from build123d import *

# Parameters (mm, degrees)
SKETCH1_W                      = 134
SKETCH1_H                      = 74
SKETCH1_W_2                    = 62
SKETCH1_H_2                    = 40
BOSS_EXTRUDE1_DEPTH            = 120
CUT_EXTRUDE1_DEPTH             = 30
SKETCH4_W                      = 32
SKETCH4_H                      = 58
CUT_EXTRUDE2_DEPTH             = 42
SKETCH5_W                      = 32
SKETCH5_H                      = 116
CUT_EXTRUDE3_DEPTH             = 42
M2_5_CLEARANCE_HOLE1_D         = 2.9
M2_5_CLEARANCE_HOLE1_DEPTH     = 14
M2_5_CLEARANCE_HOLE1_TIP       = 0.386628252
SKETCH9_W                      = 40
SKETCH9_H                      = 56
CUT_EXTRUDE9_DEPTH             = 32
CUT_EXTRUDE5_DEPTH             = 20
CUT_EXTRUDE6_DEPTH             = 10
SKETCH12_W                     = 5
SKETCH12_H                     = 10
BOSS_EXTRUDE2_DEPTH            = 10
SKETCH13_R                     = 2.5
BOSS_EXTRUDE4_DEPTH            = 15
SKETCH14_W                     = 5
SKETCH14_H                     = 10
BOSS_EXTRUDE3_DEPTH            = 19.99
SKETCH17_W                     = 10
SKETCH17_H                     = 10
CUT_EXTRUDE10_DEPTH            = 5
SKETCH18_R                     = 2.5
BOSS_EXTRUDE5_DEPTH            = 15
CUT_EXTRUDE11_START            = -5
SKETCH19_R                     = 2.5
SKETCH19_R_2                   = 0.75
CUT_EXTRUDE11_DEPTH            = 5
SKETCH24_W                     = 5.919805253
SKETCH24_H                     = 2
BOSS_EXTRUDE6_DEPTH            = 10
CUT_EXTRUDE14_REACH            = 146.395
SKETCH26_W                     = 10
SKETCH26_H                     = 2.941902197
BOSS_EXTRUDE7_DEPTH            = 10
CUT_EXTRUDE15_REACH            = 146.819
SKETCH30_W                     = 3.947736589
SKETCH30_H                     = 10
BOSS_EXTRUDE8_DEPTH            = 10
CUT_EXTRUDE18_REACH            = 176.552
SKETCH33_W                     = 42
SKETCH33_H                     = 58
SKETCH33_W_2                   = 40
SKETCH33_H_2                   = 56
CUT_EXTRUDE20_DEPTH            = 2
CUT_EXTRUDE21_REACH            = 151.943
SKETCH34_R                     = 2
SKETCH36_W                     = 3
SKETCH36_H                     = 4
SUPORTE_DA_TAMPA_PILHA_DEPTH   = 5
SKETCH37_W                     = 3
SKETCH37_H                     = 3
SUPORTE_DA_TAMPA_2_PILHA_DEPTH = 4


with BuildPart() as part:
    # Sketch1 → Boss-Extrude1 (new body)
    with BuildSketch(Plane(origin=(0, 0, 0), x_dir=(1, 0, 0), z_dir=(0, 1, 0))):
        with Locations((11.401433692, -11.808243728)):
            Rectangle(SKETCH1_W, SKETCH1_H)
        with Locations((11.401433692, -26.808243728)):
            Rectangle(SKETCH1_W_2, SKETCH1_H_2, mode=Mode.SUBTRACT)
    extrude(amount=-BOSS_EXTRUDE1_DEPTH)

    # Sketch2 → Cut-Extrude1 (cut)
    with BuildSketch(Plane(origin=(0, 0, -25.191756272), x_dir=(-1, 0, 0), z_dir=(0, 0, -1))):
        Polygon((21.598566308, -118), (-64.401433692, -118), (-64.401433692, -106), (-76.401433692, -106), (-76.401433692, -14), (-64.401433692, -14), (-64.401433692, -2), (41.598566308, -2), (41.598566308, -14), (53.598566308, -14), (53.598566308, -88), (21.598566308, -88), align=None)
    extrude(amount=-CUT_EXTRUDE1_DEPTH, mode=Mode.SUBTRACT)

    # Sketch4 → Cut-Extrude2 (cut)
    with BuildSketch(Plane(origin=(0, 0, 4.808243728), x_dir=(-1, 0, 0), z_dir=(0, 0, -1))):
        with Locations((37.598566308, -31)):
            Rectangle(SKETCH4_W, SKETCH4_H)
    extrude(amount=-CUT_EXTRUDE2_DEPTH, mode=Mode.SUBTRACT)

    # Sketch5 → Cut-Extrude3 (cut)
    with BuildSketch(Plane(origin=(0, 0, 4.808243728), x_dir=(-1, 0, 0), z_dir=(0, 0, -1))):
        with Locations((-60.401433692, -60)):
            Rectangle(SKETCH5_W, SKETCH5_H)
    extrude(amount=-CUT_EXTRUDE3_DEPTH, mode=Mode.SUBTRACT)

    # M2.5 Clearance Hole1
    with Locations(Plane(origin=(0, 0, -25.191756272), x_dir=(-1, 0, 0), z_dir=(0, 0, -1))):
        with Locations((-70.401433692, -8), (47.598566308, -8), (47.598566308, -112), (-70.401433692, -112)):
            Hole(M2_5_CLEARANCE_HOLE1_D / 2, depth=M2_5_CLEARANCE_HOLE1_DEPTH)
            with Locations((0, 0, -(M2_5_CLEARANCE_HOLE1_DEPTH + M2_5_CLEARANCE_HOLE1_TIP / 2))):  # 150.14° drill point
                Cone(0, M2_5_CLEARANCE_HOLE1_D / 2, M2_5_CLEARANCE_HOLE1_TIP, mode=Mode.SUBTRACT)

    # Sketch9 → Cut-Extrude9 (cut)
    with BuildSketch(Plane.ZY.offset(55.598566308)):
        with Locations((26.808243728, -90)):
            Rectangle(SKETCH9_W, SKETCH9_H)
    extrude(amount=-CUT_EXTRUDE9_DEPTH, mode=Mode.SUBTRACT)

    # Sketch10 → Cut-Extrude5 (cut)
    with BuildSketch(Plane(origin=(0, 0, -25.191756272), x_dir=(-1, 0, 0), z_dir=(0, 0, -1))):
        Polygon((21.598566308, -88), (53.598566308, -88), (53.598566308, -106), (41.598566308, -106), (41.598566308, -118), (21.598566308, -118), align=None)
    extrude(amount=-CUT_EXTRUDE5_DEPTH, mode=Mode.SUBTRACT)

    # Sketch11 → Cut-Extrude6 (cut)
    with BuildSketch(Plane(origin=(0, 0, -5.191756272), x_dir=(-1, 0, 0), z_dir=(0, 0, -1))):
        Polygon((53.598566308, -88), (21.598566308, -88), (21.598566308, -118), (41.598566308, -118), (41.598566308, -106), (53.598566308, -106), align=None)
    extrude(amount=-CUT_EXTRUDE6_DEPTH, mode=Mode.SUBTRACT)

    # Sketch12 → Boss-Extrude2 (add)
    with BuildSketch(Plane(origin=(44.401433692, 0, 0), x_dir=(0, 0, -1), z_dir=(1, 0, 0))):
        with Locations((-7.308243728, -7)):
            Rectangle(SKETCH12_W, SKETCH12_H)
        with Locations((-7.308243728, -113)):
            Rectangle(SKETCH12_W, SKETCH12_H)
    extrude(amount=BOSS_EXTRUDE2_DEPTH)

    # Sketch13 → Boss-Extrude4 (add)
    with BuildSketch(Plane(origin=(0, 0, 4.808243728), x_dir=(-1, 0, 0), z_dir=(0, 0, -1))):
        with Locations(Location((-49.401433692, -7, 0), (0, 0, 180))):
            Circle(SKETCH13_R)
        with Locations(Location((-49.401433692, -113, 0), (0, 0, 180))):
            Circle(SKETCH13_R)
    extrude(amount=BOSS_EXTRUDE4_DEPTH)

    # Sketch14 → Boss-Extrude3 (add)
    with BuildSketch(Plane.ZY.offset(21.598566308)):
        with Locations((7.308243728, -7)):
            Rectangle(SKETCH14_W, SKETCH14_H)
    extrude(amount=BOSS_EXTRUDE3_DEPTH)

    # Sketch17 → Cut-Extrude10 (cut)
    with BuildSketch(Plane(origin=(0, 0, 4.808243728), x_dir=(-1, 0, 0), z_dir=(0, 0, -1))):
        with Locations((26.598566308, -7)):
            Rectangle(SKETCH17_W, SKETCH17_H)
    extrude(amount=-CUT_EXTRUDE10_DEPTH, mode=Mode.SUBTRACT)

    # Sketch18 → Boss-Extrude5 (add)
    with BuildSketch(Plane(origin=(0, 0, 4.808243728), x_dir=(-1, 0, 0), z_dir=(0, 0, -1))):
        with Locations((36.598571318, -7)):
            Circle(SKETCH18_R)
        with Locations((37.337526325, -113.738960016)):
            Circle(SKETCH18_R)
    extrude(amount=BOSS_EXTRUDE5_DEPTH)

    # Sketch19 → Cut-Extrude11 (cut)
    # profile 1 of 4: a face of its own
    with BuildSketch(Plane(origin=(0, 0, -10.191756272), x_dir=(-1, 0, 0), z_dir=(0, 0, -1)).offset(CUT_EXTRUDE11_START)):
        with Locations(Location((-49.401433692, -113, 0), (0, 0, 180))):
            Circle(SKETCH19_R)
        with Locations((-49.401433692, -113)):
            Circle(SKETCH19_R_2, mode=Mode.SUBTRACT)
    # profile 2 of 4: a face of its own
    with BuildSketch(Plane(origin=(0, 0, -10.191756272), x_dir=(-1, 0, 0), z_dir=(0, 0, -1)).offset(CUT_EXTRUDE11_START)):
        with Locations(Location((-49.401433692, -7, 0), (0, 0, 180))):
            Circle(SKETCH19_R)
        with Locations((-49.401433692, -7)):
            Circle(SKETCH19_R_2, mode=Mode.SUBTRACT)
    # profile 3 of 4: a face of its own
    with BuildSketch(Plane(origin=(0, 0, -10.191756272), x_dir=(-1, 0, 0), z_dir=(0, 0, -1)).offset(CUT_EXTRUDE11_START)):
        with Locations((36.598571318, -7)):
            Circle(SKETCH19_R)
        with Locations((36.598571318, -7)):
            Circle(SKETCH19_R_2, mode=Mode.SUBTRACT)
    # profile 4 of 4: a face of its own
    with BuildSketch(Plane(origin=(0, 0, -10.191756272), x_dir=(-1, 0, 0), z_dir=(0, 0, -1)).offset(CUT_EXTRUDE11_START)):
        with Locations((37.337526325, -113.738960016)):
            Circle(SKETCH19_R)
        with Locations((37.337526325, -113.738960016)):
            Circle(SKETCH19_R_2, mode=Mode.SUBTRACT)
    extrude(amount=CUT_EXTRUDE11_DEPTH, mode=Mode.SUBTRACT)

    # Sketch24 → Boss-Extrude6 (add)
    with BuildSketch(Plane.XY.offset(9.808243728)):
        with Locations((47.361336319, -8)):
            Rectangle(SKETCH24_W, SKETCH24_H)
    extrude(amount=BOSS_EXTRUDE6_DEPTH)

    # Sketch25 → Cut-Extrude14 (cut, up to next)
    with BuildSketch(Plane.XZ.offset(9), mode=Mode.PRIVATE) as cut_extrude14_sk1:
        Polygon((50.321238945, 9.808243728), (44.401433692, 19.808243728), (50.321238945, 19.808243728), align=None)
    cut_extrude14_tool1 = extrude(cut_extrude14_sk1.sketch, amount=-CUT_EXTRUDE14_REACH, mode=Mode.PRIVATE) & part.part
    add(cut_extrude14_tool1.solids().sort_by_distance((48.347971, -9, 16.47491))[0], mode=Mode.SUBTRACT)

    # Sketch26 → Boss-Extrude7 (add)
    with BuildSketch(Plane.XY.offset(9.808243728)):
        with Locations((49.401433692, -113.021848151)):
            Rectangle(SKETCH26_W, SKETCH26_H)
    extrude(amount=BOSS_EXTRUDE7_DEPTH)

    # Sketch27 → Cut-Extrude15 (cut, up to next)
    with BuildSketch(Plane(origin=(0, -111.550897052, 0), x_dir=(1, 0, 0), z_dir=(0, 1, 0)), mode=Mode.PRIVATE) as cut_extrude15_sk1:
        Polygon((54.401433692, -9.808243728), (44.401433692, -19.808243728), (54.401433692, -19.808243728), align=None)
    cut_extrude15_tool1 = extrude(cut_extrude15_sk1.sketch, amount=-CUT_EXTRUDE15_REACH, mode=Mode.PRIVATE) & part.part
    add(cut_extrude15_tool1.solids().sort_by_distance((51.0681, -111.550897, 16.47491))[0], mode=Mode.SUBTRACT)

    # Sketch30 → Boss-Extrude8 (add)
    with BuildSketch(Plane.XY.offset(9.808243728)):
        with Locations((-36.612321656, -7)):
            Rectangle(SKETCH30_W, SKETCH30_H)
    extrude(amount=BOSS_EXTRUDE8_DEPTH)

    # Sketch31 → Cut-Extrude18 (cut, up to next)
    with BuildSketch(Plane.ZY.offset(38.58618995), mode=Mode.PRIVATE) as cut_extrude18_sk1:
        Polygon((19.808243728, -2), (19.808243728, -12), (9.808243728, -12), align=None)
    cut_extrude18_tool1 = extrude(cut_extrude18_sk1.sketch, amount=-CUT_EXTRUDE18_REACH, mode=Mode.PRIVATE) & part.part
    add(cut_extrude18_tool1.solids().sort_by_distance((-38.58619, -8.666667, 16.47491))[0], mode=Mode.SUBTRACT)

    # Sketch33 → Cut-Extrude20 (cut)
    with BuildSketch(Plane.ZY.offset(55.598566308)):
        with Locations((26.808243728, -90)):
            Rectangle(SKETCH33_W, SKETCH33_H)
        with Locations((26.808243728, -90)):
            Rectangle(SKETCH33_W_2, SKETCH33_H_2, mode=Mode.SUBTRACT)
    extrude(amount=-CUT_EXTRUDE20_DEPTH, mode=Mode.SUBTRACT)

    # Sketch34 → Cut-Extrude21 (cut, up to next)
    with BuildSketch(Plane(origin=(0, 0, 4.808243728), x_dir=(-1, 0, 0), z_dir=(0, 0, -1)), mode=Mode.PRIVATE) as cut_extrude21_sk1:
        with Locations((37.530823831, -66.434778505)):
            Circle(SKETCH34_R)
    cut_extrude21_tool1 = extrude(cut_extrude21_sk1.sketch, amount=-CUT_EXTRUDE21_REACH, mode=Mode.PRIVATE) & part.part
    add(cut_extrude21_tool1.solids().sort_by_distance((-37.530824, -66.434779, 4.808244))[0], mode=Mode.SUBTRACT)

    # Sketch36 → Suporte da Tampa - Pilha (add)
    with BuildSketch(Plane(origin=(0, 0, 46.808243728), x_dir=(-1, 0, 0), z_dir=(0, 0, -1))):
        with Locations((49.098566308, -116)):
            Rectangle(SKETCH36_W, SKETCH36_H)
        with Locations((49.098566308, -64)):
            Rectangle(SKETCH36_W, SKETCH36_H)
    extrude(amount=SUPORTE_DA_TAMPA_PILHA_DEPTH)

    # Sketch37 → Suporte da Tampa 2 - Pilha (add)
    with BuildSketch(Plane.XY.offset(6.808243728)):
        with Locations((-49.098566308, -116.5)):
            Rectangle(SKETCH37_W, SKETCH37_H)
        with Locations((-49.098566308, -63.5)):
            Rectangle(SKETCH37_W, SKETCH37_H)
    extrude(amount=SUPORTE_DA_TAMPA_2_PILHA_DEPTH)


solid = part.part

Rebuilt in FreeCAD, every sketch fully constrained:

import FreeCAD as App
import Part
import Sketcher
Q = App.Units.Quantity

doc = App.newDocument("Part")
body = doc.addObject("PartDesign::Body", "Body")

# Sketch on XZ plane
sketch1 = body.newObject("Sketcher::SketchObject", "Sketch")
sketch1.AttachmentSupport = (doc.getObject("XZ_Plane"), [""])
sketch1.MapMode = "FlatFace"
sketch1.addGeometry([
    Part.LineSegment(App.Vector(-56, -25, 0), App.Vector(-56, 49, 0)),  # 0
    Part.LineSegment(App.Vector(-56, 49, 0), App.Vector(78, 49, 0)),  # 1
    Part.LineSegment(App.Vector(78, 49, 0), App.Vector(78, -25, 0)),  # 2
    Part.LineSegment(App.Vector(78, -25, 0), App.Vector(-56, -25, 0)),  # 3
    Part.LineSegment(App.Vector(42, 47, 0), App.Vector(-20, 47, 0)),  # 4
    Part.LineSegment(App.Vector(-20, 47, 0), App.Vector(-20, 7, 0)),  # 5
    Part.LineSegment(App.Vector(-20, 7, 0), App.Vector(42, 7, 0)),  # 6
    Part.LineSegment(App.Vector(42, 7, 0), App.Vector(42, 47, 0)),  # 7
], False)
sketch1.addConstraint([
    Sketcher.Constraint("Coincident", 0, 2, 1, 1),
    Sketcher.Constraint("Coincident", 1, 2, 2, 1),
    Sketcher.Constraint("Coincident", 2, 2, 3, 1),
    Sketcher.Constraint("Coincident", 3, 2, 0, 1),
    Sketcher.Constraint("Coincident", 4, 2, 5, 1),
    Sketcher.Constraint("Coincident", 5, 2, 6, 1),
    Sketcher.Constraint("Coincident", 6, 2, 7, 1),
    Sketcher.Constraint("Coincident", 7, 2, 4, 1),
    Sketcher.Constraint("Vertical", 0),
    Sketcher.Constraint("Horizontal", 1),
    Sketcher.Constraint("Vertical", 2),
    Sketcher.Constraint("Horizontal", 3),
    Sketcher.Constraint("Horizontal", 4),
    Sketcher.Constraint("Vertical", 5),
    Sketcher.Constraint("Horizontal", 6),
    Sketcher.Constraint("Vertical", 7),
    Sketcher.Constraint("DistanceX", 1, 1, 1, 2, Q("134 mm")),
    Sketcher.Constraint("DistanceX", 4, 2, 4, 1, Q("62 mm")),
    Sketcher.Constraint("DistanceY", 0, 1, 0, 2, Q("74 mm")),
    Sketcher.Constraint("DistanceY", 5, 2, 5, 1, Q("40 mm")),
    Sketcher.Constraint("DistanceX", 0, 2, 4, 2, Q("36 mm")),
    Sketcher.Constraint("DistanceY", 4, 2, 0, 2, Q("2 mm")),
    Sketcher.Constraint("DistanceX", 0, 2, -1, 1, Q("55.598566 mm")),
    Sketcher.Constraint("DistanceY", -1, 1, 0, 2, Q("48.808244 mm")),
])
pad1 = body.newObject("PartDesign::Pad", "Pad")
pad1.Profile = sketch1
pad1.Length = 120

# Sketch on XY plane
sketch2 = body.newObject("Sketcher::SketchObject", "Sketch001")
sketch2.AttachmentSupport = (doc.getObject("XY_Plane"), [""])
sketch2.MapMode = "FlatFace"
sketch2.AttachmentOffset = App.Placement(App.Vector(0, 0, -25.191756), App.Rotation())
sketch2.addGeometry([
    Part.LineSegment(App.Vector(64, -118, 0), App.Vector(-22, -118, 0)),  # 0
    Part.LineSegment(App.Vector(-22, -118, 0), App.Vector(-22, -88, 0)),  # 1
    Part.LineSegment(App.Vector(-22, -88, 0), App.Vector(-54, -88, 0)),  # 2
    Part.LineSegment(App.Vector(-54, -88, 0), App.Vector(-54, -14, 0)),  # 3
    Part.LineSegment(App.Vector(-54, -14, 0), App.Vector(-42, -14, 0)),  # 4
    Part.LineSegment(App.Vector(-42, -14, 0), App.Vector(-42, -2, 0)),  # 5
    Part.LineSegment(App.Vector(-42, -2, 0), App.Vector(64, -2, 0)),  # 6
    Part.LineSegment(App.Vector(64, -2, 0), App.Vector(64, -14, 0)),  # 7
    Part.LineSegment(App.Vector(64, -14, 0), App.Vector(76, -14, 0)),  # 8
    Part.LineSegment(App.Vector(76, -14, 0), App.Vector(76, -106, 0)),  # 9
    Part.LineSegment(App.Vector(76, -106, 0), App.Vector(64, -106, 0)),  # 10
    Part.LineSegment(App.Vector(64, -106, 0), App.Vector(64, -118, 0)),  # 11
], False)
sketch2.addConstraint([
    Sketcher.Constraint("Coincident", 0, 2, 1, 1),
    Sketcher.Constraint("Coincident", 1, 2, 2, 1),
    Sketcher.Constraint("Coincident", 2, 2, 3, 1),
    Sketcher.Constraint("Coincident", 3, 2, 4, 1),
    Sketcher.Constraint("Coincident", 4, 2, 5, 1),
    Sketcher.Constraint("Coincident", 5, 2, 6, 1),
    Sketcher.Constraint("Coincident", 6, 2, 7, 1),
    Sketcher.Constraint("Coincident", 7, 2, 8, 1),
    Sketcher.Constraint("Coincident", 8, 2, 9, 1),
    Sketcher.Constraint("Coincident", 9, 2, 10, 1),
    Sketcher.Constraint("Coincident", 10, 2, 11, 1),
    Sketcher.Constraint("Coincident", 11, 2, 0, 1),
    Sketcher.Constraint("Horizontal", 0),
    Sketcher.Constraint("Vertical", 1),
    Sketcher.Constraint("Horizontal", 2),
    Sketcher.Constraint("Vertical", 3),
    Sketcher.Constraint("Horizontal", 4),
    Sketcher.Constraint("Vertical", 5),
    Sketcher.Constraint("Horizontal", 6),
    Sketcher.Constraint("Vertical", 7),
    Sketcher.Constraint("Horizontal", 8),
    Sketcher.Constraint("Vertical", 9),
    Sketcher.Constraint("Horizontal", 10),
    Sketcher.Constraint("Vertical", 11),
    Sketcher.Constraint("Horizontal", 4, 2, 7, 2),
    Sketcher.Constraint("Vertical", 7, 2, 10, 2),
    Sketcher.Constraint("Equal", 4, 8),
    Sketcher.Constraint("Equal", 10, 5),
    Sketcher.Constraint("Equal", 7, 11),
    Sketcher.Constraint("DistanceX", 0, 2, 0, 1, Q("86 mm")),
    Sketcher.Constraint("DistanceX", 2, 2, 2, 1, Q("32 mm")),
    Sketcher.Constraint("DistanceX", 4, 1, 4, 2, Q("12 mm")),
    Sketcher.Constraint("DistanceY", 1, 1, 1, 2, Q("30 mm")),
    Sketcher.Constraint("DistanceY", 3, 1, 3, 2, Q("74 mm")),
    Sketcher.Constraint("DistanceY", 0, 2, -1, 1, Q("118 mm")),
    Sketcher.Constraint("DistanceX", 0, 2, -1, 1, Q("21.598566 mm")),
])
pocket1 = body.newObject("PartDesign::Pocket", "Pocket")
pocket1.Profile = sketch2
pocket1.Length = 30
pocket1.Reversed = True

# Sketch on XY plane
sketch3 = body.newObject("Sketcher::SketchObject", "Sketch002")
sketch3.AttachmentSupport = (doc.getObject("XY_Plane"), [""])
sketch3.MapMode = "FlatFace"
sketch3.AttachmentOffset = App.Placement(App.Vector(0, 0, 4.808244), App.Rotation())
sketch3.addGeometry([
    Part.LineSegment(App.Vector(-22, -2, 0), App.Vector(-22, -60, 0)),
    Part.LineSegment(App.Vector(-22, -60, 0), App.Vector(-54, -60, 0)),
    Part.LineSegment(App.Vector(-54, -60, 0), App.Vector(-54, -2, 0)),
    Part.LineSegment(App.Vector(-54, -2, 0), App.Vector(-22, -2, 0)),
], False)
sketch3.addConstraint([
    Sketcher.Constraint("Coincident", 0, 2, 1, 1),
    Sketcher.Constraint("Coincident", 1, 2, 2, 1),
    Sketcher.Constraint("Coincident", 2, 2, 3, 1),
    Sketcher.Constraint("Coincident", 3, 2, 0, 1),
    Sketcher.Constraint("Vertical", 0),
    Sketcher.Constraint("Horizontal", 1),
    Sketcher.Constraint("Vertical", 2),
    Sketcher.Constraint("Horizontal", 3),
    Sketcher.Constraint("DistanceX", 1, 2, 1, 1, Q("32 mm")),
    Sketcher.Constraint("DistanceY", 0, 2, 0, 1, Q("58 mm")),
    Sketcher.Constraint("DistanceY", 0, 2, -1, 1, Q("60 mm")),
    Sketcher.Constraint("DistanceX", 0, 2, -1, 1, Q("21.598566 mm")),
])
pocket2 = body.newObject("PartDesign::Pocket", "Pocket001")
pocket2.Profile = sketch3
pocket2.Length = 42
pocket2.Reversed = True

# Sketch on XY plane
sketch4 = body.newObject("Sketcher::SketchObject", "Sketch003")
sketch4.AttachmentSupport = (doc.getObject("XY_Plane"), [""])
sketch4.MapMode = "FlatFace"
sketch4.AttachmentOffset = App.Placement(App.Vector(0, 0, 4.808244), App.Rotation())
sketch4.addGeometry([
    Part.LineSegment(App.Vector(76, -2, 0), App.Vector(76, -118, 0)),
    Part.LineSegment(App.Vector(76, -118, 0), App.Vector(44, -118, 0)),
    Part.LineSegment(App.Vector(44, -118, 0), App.Vector(44, -2, 0)),
    Part.LineSegment(App.Vector(44, -2, 0), App.Vector(76, -2, 0)),
], False)
sketch4.addConstraint([
    Sketcher.Constraint("Coincident", 0, 2, 1, 1),
    Sketcher.Constraint("Coincident", 1, 2, 2, 1),
    Sketcher.Constraint("Coincident", 2, 2, 3, 1),
    Sketcher.Constraint("Coincident", 3, 2, 0, 1),
    Sketcher.Constraint("Vertical", 0),
    Sketcher.Constraint("Horizontal", 1),
    Sketcher.Constraint("Vertical", 2),
    Sketcher.Constraint("Horizontal", 3),
    Sketcher.Constraint("DistanceX", 1, 2, 1, 1, Q("32 mm")),
    Sketcher.Constraint("DistanceY", 0, 2, 0, 1, Q("116 mm")),
    Sketcher.Constraint("DistanceY", 0, 2, -1, 1, Q("118 mm")),
    Sketcher.Constraint("DistanceX", -1, 1, 0, 2, Q("76.401434 mm")),
])
pocket3 = body.newObject("PartDesign::Pocket", "Pocket002")
pocket3.Profile = sketch4
pocket3.Length = 42
pocket3.Reversed = True

# Sketch on XY plane
sketch5 = body.newObject("Sketcher::SketchObject", "Sketch004")
sketch5.AttachmentSupport = (doc.getObject("XY_Plane"), [""])
sketch5.MapMode = "FlatFace"
sketch5.AttachmentOffset = App.Placement(App.Vector(0, 0, -25.191756), App.Rotation())
sketch5.addGeometry([
    Part.Circle(App.Vector(70.4, -8, 0), App.Vector(0, 0, 1), 1.4),
    Part.Circle(App.Vector(-47.6, -8, 0), App.Vector(0, 0, 1), 1.4),
    Part.Circle(App.Vector(-47.6, -112, 0), App.Vector(0, 0, 1), 1.4),
    Part.Circle(App.Vector(70.4, -112, 0), App.Vector(0, 0, 1), 1.4),
], False)
sketch5.addConstraint([
    Sketcher.Constraint("Equal", 0, 1),
    Sketcher.Constraint("Equal", 1, 2),
    Sketcher.Constraint("Equal", 2, 3),
    Sketcher.Constraint("Horizontal", 0, 3, 1, 3),
    Sketcher.Constraint("Horizontal", 2, 3, 3, 3),
    Sketcher.Constraint("Vertical", 1, 3, 2, 3),
    Sketcher.Constraint("Vertical", 0, 3, 3, 3),
    Sketcher.Constraint("Diameter", 0, Q("2.9 mm")),
    Sketcher.Constraint("DistanceY", 0, 3, -1, 1, Q("8 mm")),
    Sketcher.Constraint("DistanceY", 2, 3, -1, 1, Q("112 mm")),
    Sketcher.Constraint("DistanceX", 1, 3, 0, 3, Q("118 mm")),
    Sketcher.Constraint("DistanceX", -1, 1, 0, 3, Q("70.401434 mm")),
])
doc.recompute()
hole = body.newObject("PartDesign::Hole", "Hole")
hole.Profile = sketch5
hole.ThreadType = "None"
hole.Diameter = 2.9
hole.DepthType = "Dimension"
hole.Depth = 14
hole.DrillPoint = "Angled"
hole.DrillPointAngle = 150.14
hole.Reversed = True

# Sketch on YZ plane
sketch6 = body.newObject("Sketcher::SketchObject", "Sketch005")
sketch6.AttachmentSupport = (doc.getObject("YZ_Plane"), [""])
sketch6.MapMode = "FlatFace"
sketch6.AttachmentOffset = App.Placement(App.Vector(0, 0, -55.598566), App.Rotation())
sketch6.addGeometry([
    Part.LineSegment(App.Vector(-62, 7, 0), App.Vector(-118, 7, 0)),
    Part.LineSegment(App.Vector(-118, 7, 0), App.Vector(-118, 47, 0)),
    Part.LineSegment(App.Vector(-118, 47, 0), App.Vector(-62, 47, 0)),
    Part.LineSegment(App.Vector(-62, 47, 0), App.Vector(-62, 7, 0)),
], False)
sketch6.addConstraint([
    Sketcher.Constraint("Coincident", 0, 2, 1, 1),
    Sketcher.Constraint("Coincident", 1, 2, 2, 1),
    Sketcher.Constraint("Coincident", 2, 2, 3, 1),
    Sketcher.Constraint("Coincident", 3, 2, 0, 1),
    Sketcher.Constraint("Horizontal", 0),
    Sketcher.Constraint("Vertical", 1),
    Sketcher.Constraint("Horizontal", 2),
    Sketcher.Constraint("Vertical", 3),
    Sketcher.Constraint("DistanceX", 0, 2, 0, 1, Q("56 mm")),
    Sketcher.Constraint("DistanceY", 1, 1, 1, 2, Q("40 mm")),
    Sketcher.Constraint("DistanceX", 0, 2, -1, 1, Q("118 mm")),
    Sketcher.Constraint("DistanceY", -1, 1, 0, 2, Q("6.808244 mm")),
])
pocket4 = body.newObject("PartDesign::Pocket", "Pocket003")
pocket4.Profile = sketch6
pocket4.Length = 32
pocket4.Reversed = True

# Sketch on XY plane
sketch7 = body.newObject("Sketcher::SketchObject", "Sketch006")
sketch7.AttachmentSupport = (doc.getObject("XY_Plane"), [""])
sketch7.MapMode = "FlatFace"
sketch7.AttachmentOffset = App.Placement(App.Vector(0, 0, -25.191756), App.Rotation())
sketch7.addGeometry([
    Part.LineSegment(App.Vector(-54, -88, 0), App.Vector(-22, -88, 0)),  # 0
    Part.LineSegment(App.Vector(-22, -88, 0), App.Vector(-22, -118, 0)),  # 1
    Part.LineSegment(App.Vector(-22, -118, 0), App.Vector(-42, -118, 0)),  # 2
    Part.LineSegment(App.Vector(-42, -118, 0), App.Vector(-42, -106, 0)),  # 3
    Part.LineSegment(App.Vector(-42, -106, 0), App.Vector(-54, -106, 0)),  # 4
    Part.LineSegment(App.Vector(-54, -106, 0), App.Vector(-54, -88, 0)),  # 5
], False)
sketch7.addConstraint([
    Sketcher.Constraint("Coincident", 0, 2, 1, 1),
    Sketcher.Constraint("Coincident", 1, 2, 2, 1),
    Sketcher.Constraint("Coincident", 2, 2, 3, 1),
    Sketcher.Constraint("Coincident", 3, 2, 4, 1),
    Sketcher.Constraint("Coincident", 4, 2, 5, 1),
    Sketcher.Constraint("Coincident", 5, 2, 0, 1),
    Sketcher.Constraint("Horizontal", 0),
    Sketcher.Constraint("Vertical", 1),
    Sketcher.Constraint("Horizontal", 2),
    Sketcher.Constraint("Vertical", 3),
    Sketcher.Constraint("Horizontal", 4),
    Sketcher.Constraint("Vertical", 5),
    Sketcher.Constraint("Equal", 4, 3),
    Sketcher.Constraint("DistanceX", 0, 1, 0, 2, Q("32 mm")),
    Sketcher.Constraint("DistanceX", 2, 2, 2, 1, Q("20 mm")),
    Sketcher.Constraint("DistanceY", 1, 2, 1, 1, Q("30 mm")),
    Sketcher.Constraint("DistanceY", 0, 2, -1, 1, Q("88 mm")),
    Sketcher.Constraint("DistanceX", 0, 2, -1, 1, Q("21.598566 mm")),
])
pocket5 = body.newObject("PartDesign::Pocket", "Pocket004")
pocket5.Profile = sketch7
pocket5.Length = 20
pocket5.Reversed = True

# Sketch on XY plane
sketch8 = body.newObject("Sketcher::SketchObject", "Sketch007")
sketch8.AttachmentSupport = (doc.getObject("XY_Plane"), [""])
sketch8.MapMode = "FlatFace"
sketch8.AttachmentOffset = App.Placement(App.Vector(0, 0, -5.191756), App.Rotation())
sketch8.addGeometry([
    Part.LineSegment(App.Vector(-54, -88, 0), App.Vector(-22, -88, 0)),  # 0
    Part.LineSegment(App.Vector(-22, -88, 0), App.Vector(-22, -118, 0)),  # 1
    Part.LineSegment(App.Vector(-22, -118, 0), App.Vector(-42, -118, 0)),  # 2
    Part.LineSegment(App.Vector(-42, -118, 0), App.Vector(-42, -106, 0)),  # 3
    Part.LineSegment(App.Vector(-42, -106, 0), App.Vector(-54, -106, 0)),  # 4
    Part.LineSegment(App.Vector(-54, -106, 0), App.Vector(-54, -88, 0)),  # 5
], False)
sketch8.addConstraint([
    Sketcher.Constraint("Coincident", 0, 2, 1, 1),
    Sketcher.Constraint("Coincident", 1, 2, 2, 1),
    Sketcher.Constraint("Coincident", 2, 2, 3, 1),
    Sketcher.Constraint("Coincident", 3, 2, 4, 1),
    Sketcher.Constraint("Coincident", 4, 2, 5, 1),
    Sketcher.Constraint("Coincident", 5, 2, 0, 1),
    Sketcher.Constraint("Horizontal", 0),
    Sketcher.Constraint("Vertical", 1),
    Sketcher.Constraint("Horizontal", 2),
    Sketcher.Constraint("Vertical", 3),
    Sketcher.Constraint("Horizontal", 4),
    Sketcher.Constraint("Vertical", 5),
    Sketcher.Constraint("Equal", 4, 3),
    Sketcher.Constraint("DistanceX", 0, 1, 0, 2, Q("32 mm")),
    Sketcher.Constraint("DistanceX", 2, 2, 2, 1, Q("20 mm")),
    Sketcher.Constraint("DistanceY", 1, 2, 1, 1, Q("30 mm")),
    Sketcher.Constraint("DistanceY", 0, 2, -1, 1, Q("88 mm")),
    Sketcher.Constraint("DistanceX", 0, 2, -1, 1, Q("21.598566 mm")),
])
pocket6 = body.newObject("PartDesign::Pocket", "Pocket005")
pocket6.Profile = sketch8
pocket6.Length = 10
pocket6.Reversed = True

# Sketch on YZ plane
sketch9 = body.newObject("Sketcher::SketchObject", "Sketch008")
sketch9.AttachmentSupport = (doc.getObject("YZ_Plane"), [""])
sketch9.MapMode = "FlatFace"
sketch9.AttachmentOffset = App.Placement(App.Vector(0, 0, 44.401434), App.Rotation())
sketch9.addGeometry([
    Part.LineSegment(App.Vector(-2, 10, 0), App.Vector(-12, 10, 0)),  # 0
    Part.LineSegment(App.Vector(-12, 10, 0), App.Vector(-12, 5, 0)),  # 1
    Part.LineSegment(App.Vector(-12, 5, 0), App.Vector(-2, 5, 0)),  # 2
    Part.LineSegment(App.Vector(-2, 5, 0), App.Vector(-2, 10, 0)),  # 3
    Part.LineSegment(App.Vector(-108, 10, 0), App.Vector(-118, 10, 0)),  # 4
    Part.LineSegment(App.Vector(-118, 10, 0), App.Vector(-118, 5, 0)),  # 5
    Part.LineSegment(App.Vector(-118, 5, 0), App.Vector(-108, 5, 0)),  # 6
    Part.LineSegment(App.Vector(-108, 5, 0), App.Vector(-108, 10, 0)),  # 7
], False)
sketch9.addConstraint([
    Sketcher.Constraint("Coincident", 0, 2, 1, 1),
    Sketcher.Constraint("Coincident", 1, 2, 2, 1),
    Sketcher.Constraint("Coincident", 2, 2, 3, 1),
    Sketcher.Constraint("Coincident", 3, 2, 0, 1),
    Sketcher.Constraint("Coincident", 4, 2, 5, 1),
    Sketcher.Constraint("Coincident", 5, 2, 6, 1),
    Sketcher.Constraint("Coincident", 6, 2, 7, 1),
    Sketcher.Constraint("Coincident", 7, 2, 4, 1),
    Sketcher.Constraint("Horizontal", 0),
    Sketcher.Constraint("Vertical", 1),
    Sketcher.Constraint("Horizontal", 2),
    Sketcher.Constraint("Vertical", 3),
    Sketcher.Constraint("Horizontal", 4),
    Sketcher.Constraint("Vertical", 5),
    Sketcher.Constraint("Horizontal", 6),
    Sketcher.Constraint("Vertical", 7),
    Sketcher.Constraint("Horizontal", 3, 2, 4, 2),
    Sketcher.Constraint("Horizontal", 2, 2, 5, 2),
    Sketcher.Constraint("Equal", 2, 4),
    Sketcher.Constraint("DistanceX", 0, 2, 0, 1, Q("10 mm")),
    Sketcher.Constraint("DistanceY", 1, 2, 1, 1, Q("5 mm")),
    Sketcher.Constraint("DistanceX", 0, 2, -1, 1, Q("12 mm")),
    Sketcher.Constraint("DistanceX", 4, 2, -1, 1, Q("118 mm")),
    Sketcher.Constraint("DistanceY", -1, 1, 0, 2, Q("9.808244 mm")),
])
pad2 = body.newObject("PartDesign::Pad", "Pad001")
pad2.Profile = sketch9
pad2.Length = 10

# Sketch on XY plane
sketch10 = body.newObject("Sketcher::SketchObject", "Sketch009")
sketch10.AttachmentSupport = (doc.getObject("XY_Plane"), [""])
sketch10.MapMode = "FlatFace"
sketch10.AttachmentOffset = App.Placement(App.Vector(0, 0, 4.808244), App.Rotation())
sketch10.addGeometry([
    Part.Circle(App.Vector(49.4, -7, 0), App.Vector(0, 0, 1), 2.5),
    Part.Circle(App.Vector(49.4, -113, 0), App.Vector(0, 0, 1), 2.5),
], False)
sketch10.addConstraint([
    Sketcher.Constraint("Equal", 0, 1),
    Sketcher.Constraint("Vertical", 0, 3, 1, 3),
    Sketcher.Constraint("Diameter", 0, Q("5 mm")),
    Sketcher.Constraint("DistanceY", 0, 3, -1, 1, Q("7 mm")),
    Sketcher.Constraint("DistanceY", 1, 3, -1, 1, Q("113 mm")),
    Sketcher.Constraint("DistanceX", -1, 1, 0, 3, Q("49.401434 mm")),
])
pad3 = body.newObject("PartDesign::Pad", "Pad002")
pad3.Profile = sketch10
pad3.Length = 15
pad3.Reversed = True

# Sketch on YZ plane
sketch11 = body.newObject("Sketcher::SketchObject", "Sketch010")
sketch11.AttachmentSupport = (doc.getObject("YZ_Plane"), [""])
sketch11.MapMode = "FlatFace"
sketch11.AttachmentOffset = App.Placement(App.Vector(0, 0, -21.598566), App.Rotation())
sketch11.addGeometry([
    Part.LineSegment(App.Vector(-2, 5, 0), App.Vector(-12, 5, 0)),
    Part.LineSegment(App.Vector(-12, 5, 0), App.Vector(-12, 10, 0)),
    Part.LineSegment(App.Vector(-12, 10, 0), App.Vector(-2, 10, 0)),
    Part.LineSegment(App.Vector(-2, 10, 0), App.Vector(-2, 5, 0)),
], False)
sketch11.addConstraint([
    Sketcher.Constraint("Coincident", 0, 2, 1, 1),
    Sketcher.Constraint("Coincident", 1, 2, 2, 1),
    Sketcher.Constraint("Coincident", 2, 2, 3, 1),
    Sketcher.Constraint("Coincident", 3, 2, 0, 1),
    Sketcher.Constraint("Horizontal", 0),
    Sketcher.Constraint("Vertical", 1),
    Sketcher.Constraint("Horizontal", 2),
    Sketcher.Constraint("Vertical", 3),
    Sketcher.Constraint("DistanceX", 0, 2, 0, 1, Q("10 mm")),
    Sketcher.Constraint("DistanceY", 1, 1, 1, 2, Q("5 mm")),
    Sketcher.Constraint("DistanceX", 0, 2, -1, 1, Q("12 mm")),
    Sketcher.Constraint("DistanceY", -1, 1, 0, 2, Q("4.808244 mm")),
])
pad4 = body.newObject("PartDesign::Pad", "Pad003")
pad4.Profile = sketch11
pad4.Length = 19.99
pad4.Reversed = True

# Sketch on XY plane
sketch12 = body.newObject("Sketcher::SketchObject", "Sketch011")
sketch12.AttachmentSupport = (doc.getObject("XY_Plane"), [""])
sketch12.MapMode = "FlatFace"
sketch12.AttachmentOffset = App.Placement(App.Vector(0, 0, 4.808244), App.Rotation())
sketch12.addGeometry([
    Part.LineSegment(App.Vector(-22, -2, 0), App.Vector(-22, -12, 0)),
    Part.LineSegment(App.Vector(-22, -12, 0), App.Vector(-32, -12, 0)),
    Part.LineSegment(App.Vector(-32, -12, 0), App.Vector(-32, -2, 0)),
    Part.LineSegment(App.Vector(-32, -2, 0), App.Vector(-22, -2, 0)),
], False)
sketch12.addConstraint([
    Sketcher.Constraint("Coincident", 0, 2, 1, 1),
    Sketcher.Constraint("Coincident", 1, 2, 2, 1),
    Sketcher.Constraint("Coincident", 2, 2, 3, 1),
    Sketcher.Constraint("Coincident", 3, 2, 0, 1),
    Sketcher.Constraint("Vertical", 0),
    Sketcher.Constraint("Horizontal", 1),
    Sketcher.Constraint("Vertical", 2),
    Sketcher.Constraint("Horizontal", 3),
    Sketcher.Constraint("Equal", 3, 0),
    Sketcher.Constraint("DistanceX", 1, 2, 1, 1, Q("10 mm")),
    Sketcher.Constraint("DistanceY", 0, 2, -1, 1, Q("12 mm")),
    Sketcher.Constraint("DistanceX", 0, 2, -1, 1, Q("21.598566 mm")),
])
pocket7 = body.newObject("PartDesign::Pocket", "Pocket006")
pocket7.Profile = sketch12
pocket7.Length = 5
pocket7.Reversed = True

# Sketch on XY plane
sketch13 = body.newObject("Sketcher::SketchObject", "Sketch012")
sketch13.AttachmentSupport = (doc.getObject("XY_Plane"), [""])
sketch13.MapMode = "FlatFace"
sketch13.AttachmentOffset = App.Placement(App.Vector(0, 0, 4.808244), App.Rotation())
sketch13.addGeometry([
    Part.Circle(App.Vector(-36.6, -7, 0), App.Vector(0, 0, 1), 2.5),
    Part.Circle(App.Vector(-37.3, -113.7, 0), App.Vector(0, 0, 1), 2.5),
], False)
sketch13.addConstraint([
    Sketcher.Constraint("Equal", 0, 1),
    Sketcher.Constraint("Diameter", 0, Q("5 mm")),
    Sketcher.Constraint("DistanceY", 0, 3, -1, 1, Q("7 mm")),
    Sketcher.Constraint("DistanceX", 0, 3, -1, 1, Q("36.598571 mm")),
    Sketcher.Constraint("DistanceY", 1, 3, -1, 1, Q("113.73896 mm")),
    Sketcher.Constraint("DistanceX", 1, 3, -1, 1, Q("37.337526 mm")),
])
pad5 = body.newObject("PartDesign::Pad", "Pad004")
pad5.Profile = sketch13
pad5.Length = 15
pad5.Reversed = True

# Sketch on XY plane
sketch14 = body.newObject("Sketcher::SketchObject", "Sketch013")
sketch14.AttachmentSupport = (doc.getObject("XY_Plane"), [""])
sketch14.MapMode = "FlatFace"
sketch14.AttachmentOffset = App.Placement(App.Vector(0, 0, -5.191756), App.Rotation())
sketch14.addGeometry([
    Part.Circle(App.Vector(49.4, -113, 0), App.Vector(0, 0, 1), 2.5),  # 0
    Part.Circle(App.Vector(49.4, -113, 0), App.Vector(0, 0, 1), 0.8),  # 1
    Part.Circle(App.Vector(49.4, -7, 0), App.Vector(0, 0, 1), 2.5),  # 2
    Part.Circle(App.Vector(49.4, -7, 0), App.Vector(0, 0, 1), 0.8),  # 3
    Part.Circle(App.Vector(-36.6, -7, 0), App.Vector(0, 0, 1), 2.5),  # 4
    Part.Circle(App.Vector(-36.6, -7, 0), App.Vector(0, 0, 1), 0.8),  # 5
    Part.Circle(App.Vector(-37.3, -113.7, 0), App.Vector(0, 0, 1), 2.5),  # 6
    Part.Circle(App.Vector(-37.3, -113.7, 0), App.Vector(0, 0, 1), 0.8),  # 7
], False)
sketch14.addConstraint([
    Sketcher.Constraint("Coincident", 1, 3, 0, 3),
    Sketcher.Constraint("Coincident", 3, 3, 2, 3),
    Sketcher.Constraint("Coincident", 5, 3, 4, 3),
    Sketcher.Constraint("Coincident", 7, 3, 6, 3),
    Sketcher.Constraint("Equal", 0, 2),
    Sketcher.Constraint("Equal", 1, 3),
    Sketcher.Constraint("Equal", 2, 4),
    Sketcher.Constraint("Equal", 3, 5),
    Sketcher.Constraint("Equal", 4, 6),
    Sketcher.Constraint("Equal", 5, 7),
    Sketcher.Constraint("Horizontal", 3, 3, 4, 3),
    Sketcher.Constraint("Vertical", 1, 3, 2, 3),
    Sketcher.Constraint("Diameter", 0, Q("5 mm")),
    Sketcher.Constraint("Diameter", 1, Q("1.5 mm")),
    Sketcher.Constraint("DistanceY", 0, 3, -1, 1, Q("113 mm")),
    Sketcher.Constraint("DistanceY", 2, 3, -1, 1, Q("7 mm")),
    Sketcher.Constraint("DistanceX", 4, 3, -1, 1, Q("36.598571 mm")),
    Sketcher.Constraint("DistanceY", 6, 3, -1, 1, Q("113.73896 mm")),
    Sketcher.Constraint("DistanceX", 6, 3, 0, 3, Q("86.73896 mm")),
    Sketcher.Constraint("DistanceX", -1, 1, 0, 3, Q("49.401434 mm")),
])
pocket8 = body.newObject("PartDesign::Pocket", "Pocket007")
pocket8.Profile = sketch14
pocket8.Length = 5

# Sketch on XY plane
sketch15 = body.newObject("Sketcher::SketchObject", "Sketch014")
sketch15.AttachmentSupport = (doc.getObject("XY_Plane"), [""])
sketch15.MapMode = "FlatFace"
sketch15.AttachmentOffset = App.Placement(App.Vector(0, 0, 9.808244), App.Rotation())
sketch15.addGeometry([
    Part.LineSegment(App.Vector(44.4, -7, 0), App.Vector(44.4, -9, 0)),
    Part.LineSegment(App.Vector(44.4, -9, 0), App.Vector(50.3, -9, 0)),
    Part.LineSegment(App.Vector(50.3, -9, 0), App.Vector(50.3, -7, 0)),
    Part.LineSegment(App.Vector(50.3, -7, 0), App.Vector(44.4, -7, 0)),
], False)
sketch15.addConstraint([
    Sketcher.Constraint("Coincident", 0, 2, 1, 1),
    Sketcher.Constraint("Coincident", 1, 2, 2, 1),
    Sketcher.Constraint("Coincident", 2, 2, 3, 1),
    Sketcher.Constraint("Coincident", 3, 2, 0, 1),
    Sketcher.Constraint("Vertical", 0),
    Sketcher.Constraint("Horizontal", 1),
    Sketcher.Constraint("Vertical", 2),
    Sketcher.Constraint("Horizontal", 3),
    Sketcher.Constraint("DistanceY", 0, 2, 0, 1, Q("2 mm")),
    Sketcher.Constraint("DistanceY", 0, 2, -1, 1, Q("9 mm")),
    Sketcher.Constraint("DistanceX", 1, 1, 1, 2, Q("5.919805 mm")),
    Sketcher.Constraint("DistanceX", -1, 1, 1, 2, Q("50.321239 mm")),
])
pad6 = body.newObject("PartDesign::Pad", "Pad005")
pad6.Profile = sketch15
pad6.Length = 10

# Sketch on XZ plane
sketch16 = body.newObject("Sketcher::SketchObject", "Sketch015")
sketch16.AttachmentSupport = (doc.getObject("XZ_Plane"), [""])
sketch16.MapMode = "FlatFace"
sketch16.AttachmentOffset = App.Placement(App.Vector(0, 0, 9), App.Rotation())
sketch16.addGeometry([
    Part.LineSegment(App.Vector(44, 20, 0), App.Vector(50, 10, 0)),
    Part.LineSegment(App.Vector(50, 10, 0), App.Vector(50, 20, 0)),
    Part.LineSegment(App.Vector(50, 20, 0), App.Vector(44, 20, 0)),
], False)
sketch16.addConstraint([
    Sketcher.Constraint("Coincident", 0, 2, 1, 1),
    Sketcher.Constraint("Coincident", 1, 2, 2, 1),
    Sketcher.Constraint("Coincident", 2, 2, 0, 1),
    Sketcher.Constraint("Vertical", 1),
    Sketcher.Constraint("Horizontal", 2),
    Sketcher.Constraint("DistanceY", 1, 1, 1, 2, Q("10 mm")),
    Sketcher.Constraint("DistanceX", 2, 2, 2, 1, Q("5.919805 mm")),
    Sketcher.Constraint("DistanceX", -1, 1, 0, 2, Q("50.321239 mm")),
    Sketcher.Constraint("DistanceY", -1, 1, 0, 2, Q("9.808244 mm")),
])
pocket9 = body.newObject("PartDesign::Pocket", "Pocket008")
pocket9.Profile = sketch16
pocket9.Type = "UpToFirst"

# Sketch on XY plane
sketch17 = body.newObject("Sketcher::SketchObject", "Sketch016")
sketch17.AttachmentSupport = (doc.getObject("XY_Plane"), [""])
sketch17.MapMode = "FlatFace"
sketch17.AttachmentOffset = App.Placement(App.Vector(0, 0, 9.808244), App.Rotation())
sketch17.addGeometry([
    Part.LineSegment(App.Vector(44.4, -111.6, 0), App.Vector(44.4, -114.5, 0)),
    Part.LineSegment(App.Vector(44.4, -114.5, 0), App.Vector(54.4, -114.5, 0)),
    Part.LineSegment(App.Vector(54.4, -114.5, 0), App.Vector(54.4, -111.6, 0)),
    Part.LineSegment(App.Vector(54.4, -111.6, 0), App.Vector(44.4, -111.6, 0)),
], False)
sketch17.addConstraint([
    Sketcher.Constraint("Coincident", 0, 2, 1, 1),
    Sketcher.Constraint("Coincident", 1, 2, 2, 1),
    Sketcher.Constraint("Coincident", 2, 2, 3, 1),
    Sketcher.Constraint("Coincident", 3, 2, 0, 1),
    Sketcher.Constraint("Vertical", 0),
    Sketcher.Constraint("Horizontal", 1),
    Sketcher.Constraint("Vertical", 2),
    Sketcher.Constraint("Horizontal", 3),
    Sketcher.Constraint("DistanceX", 1, 1, 1, 2, Q("10 mm")),
    Sketcher.Constraint("DistanceY", 0, 2, -1, 1, Q("114.492799 mm")),
    Sketcher.Constraint("DistanceY", 0, 2, 0, 1, Q("2.941902 mm")),
    Sketcher.Constraint("DistanceX", -1, 1, 0, 2, Q("44.401434 mm")),
])
pad7 = body.newObject("PartDesign::Pad", "Pad006")
pad7.Profile = sketch17
pad7.Length = 10

# Sketch on XZ plane
sketch18 = body.newObject("Sketcher::SketchObject", "Sketch017")
sketch18.AttachmentSupport = (doc.getObject("XZ_Plane"), [""])
sketch18.MapMode = "FlatFace"
sketch18.AttachmentOffset = App.Placement(App.Vector(0, 0, 111.550897), App.Rotation())
sketch18.addGeometry([
    Part.LineSegment(App.Vector(54, 10, 0), App.Vector(44, 20, 0)),
    Part.LineSegment(App.Vector(44, 20, 0), App.Vector(54, 20, 0)),
    Part.LineSegment(App.Vector(54, 20, 0), App.Vector(54, 10, 0)),
], False)
sketch18.addConstraint([
    Sketcher.Constraint("Coincident", 0, 2, 1, 1),
    Sketcher.Constraint("Coincident", 1, 2, 2, 1),
    Sketcher.Constraint("Coincident", 2, 2, 0, 1),
    Sketcher.Constraint("Horizontal", 1),
    Sketcher.Constraint("Vertical", 2),
    Sketcher.Constraint("Equal", 1, 2),
    Sketcher.Constraint("DistanceX", 1, 1, 1, 2, Q("10 mm")),
    Sketcher.Constraint("DistanceX", -1, 1, 0, 2, Q("44.401434 mm")),
    Sketcher.Constraint("DistanceY", -1, 1, 0, 2, Q("19.808244 mm")),
])
pocket10 = body.newObject("PartDesign::Pocket", "Pocket009")
pocket10.Profile = sketch18
pocket10.Type = "UpToFirst"
pocket10.Reversed = True

# Sketch on XY plane
sketch19 = body.newObject("Sketcher::SketchObject", "Sketch018")
sketch19.AttachmentSupport = (doc.getObject("XY_Plane"), [""])
sketch19.MapMode = "FlatFace"
sketch19.AttachmentOffset = App.Placement(App.Vector(0, 0, 9.808244), App.Rotation())
sketch19.addGeometry([
    Part.LineSegment(App.Vector(-38.6, -2, 0), App.Vector(-38.6, -12, 0)),
    Part.LineSegment(App.Vector(-38.6, -12, 0), App.Vector(-34.6, -12, 0)),
    Part.LineSegment(App.Vector(-34.6, -12, 0), App.Vector(-34.6, -2, 0)),
    Part.LineSegment(App.Vector(-34.6, -2, 0), App.Vector(-38.6, -2, 0)),
], False)
sketch19.addConstraint([
    Sketcher.Constraint("Coincident", 0, 2, 1, 1),
    Sketcher.Constraint("Coincident", 1, 2, 2, 1),
    Sketcher.Constraint("Coincident", 2, 2, 3, 1),
    Sketcher.Constraint("Coincident", 3, 2, 0, 1),
    Sketcher.Constraint("Vertical", 0),
    Sketcher.Constraint("Horizontal", 1),
    Sketcher.Constraint("Vertical", 2),
    Sketcher.Constraint("Horizontal", 3),
    Sketcher.Constraint("DistanceY", 0, 2, 0, 1, Q("10 mm")),
    Sketcher.Constraint("DistanceY", 0, 2, -1, 1, Q("12 mm")),
    Sketcher.Constraint("DistanceX", 1, 1, 1, 2, Q("3.947737 mm")),
    Sketcher.Constraint("DistanceX", 0, 2, -1, 1, Q("38.58619 mm")),
])
pad8 = body.newObject("PartDesign::Pad", "Pad007")
pad8.Profile = sketch19
pad8.Length = 10

# Sketch on YZ plane
sketch20 = body.newObject("Sketcher::SketchObject", "Sketch019")
sketch20.AttachmentSupport = (doc.getObject("YZ_Plane"), [""])
sketch20.MapMode = "FlatFace"
sketch20.AttachmentOffset = App.Placement(App.Vector(0, 0, -38.58619), App.Rotation())
sketch20.addGeometry([
    Part.LineSegment(App.Vector(-12, 20, 0), App.Vector(-2, 20, 0)),
    Part.LineSegment(App.Vector(-2, 20, 0), App.Vector(-12, 10, 0)),
    Part.LineSegment(App.Vector(-12, 10, 0), App.Vector(-12, 20, 0)),
], False)
sketch20.addConstraint([
    Sketcher.Constraint("Coincident", 0, 2, 1, 1),
    Sketcher.Constraint("Coincident", 1, 2, 2, 1),
    Sketcher.Constraint("Coincident", 2, 2, 0, 1),
    Sketcher.Constraint("Horizontal", 0),
    Sketcher.Constraint("Vertical", 2),
    Sketcher.Constraint("Equal", 0, 2),
    Sketcher.Constraint("DistanceX", 0, 1, 0, 2, Q("10 mm")),
    Sketcher.Constraint("DistanceX", 0, 2, -1, 1, Q("2 mm")),
    Sketcher.Constraint("DistanceY", -1, 1, 0, 2, Q("19.808244 mm")),
])
pocket11 = body.newObject("PartDesign::Pocket", "Pocket010")
pocket11.Profile = sketch20
pocket11.Type = "UpToFirst"
pocket11.Reversed = True

# Sketch on YZ plane
sketch21 = body.newObject("Sketcher::SketchObject", "Sketch020")
sketch21.AttachmentSupport = (doc.getObject("YZ_Plane"), [""])
sketch21.MapMode = "FlatFace"
sketch21.AttachmentOffset = App.Placement(App.Vector(0, 0, -55.598566), App.Rotation())
sketch21.addGeometry([
    Part.LineSegment(App.Vector(-61, 6, 0), App.Vector(-119, 6, 0)),  # 0
    Part.LineSegment(App.Vector(-119, 6, 0), App.Vector(-119, 48, 0)),  # 1
    Part.LineSegment(App.Vector(-119, 48, 0), App.Vector(-61, 48, 0)),  # 2
    Part.LineSegment(App.Vector(-61, 48, 0), App.Vector(-61, 6, 0)),  # 3
    Part.LineSegment(App.Vector(-118, 47, 0), App.Vector(-118, 7, 0)),  # 4
    Part.LineSegment(App.Vector(-118, 7, 0), App.Vector(-62, 7, 0)),  # 5
    Part.LineSegment(App.Vector(-62, 7, 0), App.Vector(-62, 47, 0)),  # 6
    Part.LineSegment(App.Vector(-62, 47, 0), App.Vector(-118, 47, 0)),  # 7
], False)
sketch21.addConstraint([
    Sketcher.Constraint("Coincident", 0, 2, 1, 1),
    Sketcher.Constraint("Coincident", 1, 2, 2, 1),
    Sketcher.Constraint("Coincident", 2, 2, 3, 1),
    Sketcher.Constraint("Coincident", 3, 2, 0, 1),
    Sketcher.Constraint("Coincident", 4, 2, 5, 1),
    Sketcher.Constraint("Coincident", 5, 2, 6, 1),
    Sketcher.Constraint("Coincident", 6, 2, 7, 1),
    Sketcher.Constraint("Coincident", 7, 2, 4, 1),
    Sketcher.Constraint("Horizontal", 0),
    Sketcher.Constraint("Vertical", 1),
    Sketcher.Constraint("Horizontal", 2),
    Sketcher.Constraint("Vertical", 3),
    Sketcher.Constraint("Vertical", 4),
    Sketcher.Constraint("Horizontal", 5),
    Sketcher.Constraint("Vertical", 6),
    Sketcher.Constraint("Horizontal", 7),
    Sketcher.Constraint("DistanceX", 0, 2, 0, 1, Q("58 mm")),
    Sketcher.Constraint("DistanceX", 5, 1, 5, 2, Q("56 mm")),
    Sketcher.Constraint("DistanceY", 1, 1, 1, 2, Q("42 mm")),
    Sketcher.Constraint("DistanceY", 4, 2, 4, 1, Q("40 mm")),
    Sketcher.Constraint("DistanceX", 0, 2, -1, 1, Q("119 mm")),
    Sketcher.Constraint("DistanceX", 4, 2, -1, 1, Q("118 mm")),
    Sketcher.Constraint("DistanceY", 0, 2, 4, 2, Q("1 mm")),
    Sketcher.Constraint("DistanceY", -1, 1, 0, 2, Q("5.808244 mm")),
])
pocket12 = body.newObject("PartDesign::Pocket", "Pocket011")
pocket12.Profile = sketch21
pocket12.Length = 2
pocket12.Reversed = True

# Sketch on XY plane
sketch22 = body.newObject("Sketcher::SketchObject", "Sketch021")
sketch22.AttachmentSupport = (doc.getObject("XY_Plane"), [""])
sketch22.MapMode = "FlatFace"
sketch22.AttachmentOffset = App.Placement(App.Vector(0, 0, 4.808244), App.Rotation())
sketch22.addGeometry(Part.Circle(App.Vector(-37.5, -66.4, 0), App.Vector(0, 0, 1), 2), False)
sketch22.addConstraint([
    Sketcher.Constraint("Diameter", 0, Q("4 mm")),
    Sketcher.Constraint("DistanceY", 0, 3, -1, 1, Q("66.434779 mm")),
    Sketcher.Constraint("DistanceX", 0, 3, -1, 1, Q("37.530824 mm")),
])
pocket13 = body.newObject("PartDesign::Pocket", "Pocket012")
pocket13.Profile = sketch22
pocket13.Type = "UpToFirst"
pocket13.Reversed = True

# Sketch on XY plane
sketch23 = body.newObject("Sketcher::SketchObject", "Sketch022")
sketch23.AttachmentSupport = (doc.getObject("XY_Plane"), [""])
sketch23.MapMode = "FlatFace"
sketch23.AttachmentOffset = App.Placement(App.Vector(0, 0, 46.808244), App.Rotation())
sketch23.addGeometry([
    Part.LineSegment(App.Vector(-47.6, -114, 0), App.Vector(-47.6, -118, 0)),  # 0
    Part.LineSegment(App.Vector(-47.6, -118, 0), App.Vector(-50.6, -118, 0)),  # 1
    Part.LineSegment(App.Vector(-50.6, -118, 0), App.Vector(-50.6, -114, 0)),  # 2
    Part.LineSegment(App.Vector(-50.6, -114, 0), App.Vector(-47.6, -114, 0)),  # 3
    Part.LineSegment(App.Vector(-47.6, -62, 0), App.Vector(-47.6, -66, 0)),  # 4
    Part.LineSegment(App.Vector(-47.6, -66, 0), App.Vector(-50.6, -66, 0)),  # 5
    Part.LineSegment(App.Vector(-50.6, -66, 0), App.Vector(-50.6, -62, 0)),  # 6
    Part.LineSegment(App.Vector(-50.6, -62, 0), App.Vector(-47.6, -62, 0)),  # 7
], False)
sketch23.addConstraint([
    Sketcher.Constraint("Coincident", 0, 2, 1, 1),
    Sketcher.Constraint("Coincident", 1, 2, 2, 1),
    Sketcher.Constraint("Coincident", 2, 2, 3, 1),
    Sketcher.Constraint("Coincident", 3, 2, 0, 1),
    Sketcher.Constraint("Coincident", 4, 2, 5, 1),
    Sketcher.Constraint("Coincident", 5, 2, 6, 1),
    Sketcher.Constraint("Coincident", 6, 2, 7, 1),
    Sketcher.Constraint("Coincident", 7, 2, 4, 1),
    Sketcher.Constraint("Vertical", 0),
    Sketcher.Constraint("Horizontal", 1),
    Sketcher.Constraint("Vertical", 2),
    Sketcher.Constraint("Horizontal", 3),
    Sketcher.Constraint("Vertical", 4),
    Sketcher.Constraint("Horizontal", 5),
    Sketcher.Constraint("Vertical", 6),
    Sketcher.Constraint("Horizontal", 7),
    Sketcher.Constraint("Vertical", 3, 2, 4, 2),
    Sketcher.Constraint("Vertical", 2, 2, 5, 2),
    Sketcher.Constraint("Equal", 2, 4),
    Sketcher.Constraint("DistanceX", 1, 2, 1, 1, Q("3 mm")),
    Sketcher.Constraint("DistanceY", 0, 2, 0, 1, Q("4 mm")),
    Sketcher.Constraint("DistanceY", 0, 2, -1, 1, Q("118 mm")),
    Sketcher.Constraint("DistanceY", 4, 2, -1, 1, Q("66 mm")),
    Sketcher.Constraint("DistanceX", 0, 2, -1, 1, Q("47.598566 mm")),
])
pad9 = body.newObject("PartDesign::Pad", "Pad008")
pad9.Profile = sketch23
pad9.Length = 5
pad9.Reversed = True

# Sketch on XY plane
sketch24 = body.newObject("Sketcher::SketchObject", "Sketch023")
sketch24.AttachmentSupport = (doc.getObject("XY_Plane"), [""])
sketch24.MapMode = "FlatFace"
sketch24.AttachmentOffset = App.Placement(App.Vector(0, 0, 6.808244), App.Rotation())
sketch24.addGeometry([
    Part.LineSegment(App.Vector(-50.6, -115, 0), App.Vector(-50.6, -118, 0)),  # 0
    Part.LineSegment(App.Vector(-50.6, -118, 0), App.Vector(-47.6, -118, 0)),  # 1
    Part.LineSegment(App.Vector(-47.6, -118, 0), App.Vector(-47.6, -115, 0)),  # 2
    Part.LineSegment(App.Vector(-47.6, -115, 0), App.Vector(-50.6, -115, 0)),  # 3
    Part.LineSegment(App.Vector(-50.6, -62, 0), App.Vector(-50.6, -65, 0)),  # 4
    Part.LineSegment(App.Vector(-50.6, -65, 0), App.Vector(-47.6, -65, 0)),  # 5
    Part.LineSegment(App.Vector(-47.6, -65, 0), App.Vector(-47.6, -62, 0)),  # 6
    Part.LineSegment(App.Vector(-47.6, -62, 0), App.Vector(-50.6, -62, 0)),  # 7
], False)
sketch24.addConstraint([
    Sketcher.Constraint("Coincident", 0, 2, 1, 1),
    Sketcher.Constraint("Coincident", 1, 2, 2, 1),
    Sketcher.Constraint("Coincident", 2, 2, 3, 1),
    Sketcher.Constraint("Coincident", 3, 2, 0, 1),
    Sketcher.Constraint("Coincident", 4, 2, 5, 1),
    Sketcher.Constraint("Coincident", 5, 2, 6, 1),
    Sketcher.Constraint("Coincident", 6, 2, 7, 1),
    Sketcher.Constraint("Coincident", 7, 2, 4, 1),
    Sketcher.Constraint("Vertical", 0),
    Sketcher.Constraint("Horizontal", 1),
    Sketcher.Constraint("Vertical", 2),
    Sketcher.Constraint("Horizontal", 3),
    Sketcher.Constraint("Vertical", 4),
    Sketcher.Constraint("Horizontal", 5),
    Sketcher.Constraint("Vertical", 6),
    Sketcher.Constraint("Horizontal", 7),
    Sketcher.Constraint("Vertical", 3, 2, 4, 2),
    Sketcher.Constraint("Vertical", 2, 2, 5, 2),
    Sketcher.Constraint("Equal", 7, 0),
    Sketcher.Constraint("Equal", 2, 4),
    Sketcher.Constraint("DistanceX", 1, 1, 1, 2, Q("3 mm")),
    Sketcher.Constraint("DistanceY", 0, 2, -1, 1, Q("118 mm")),
    Sketcher.Constraint("DistanceY", 4, 2, -1, 1, Q("65 mm")),
    Sketcher.Constraint("DistanceX", 0, 2, -1, 1, Q("50.598566 mm")),
])
pad10 = body.newObject("PartDesign::Pad", "Pad009")
pad10.Profile = sketch24
pad10.Length = 4

doc.recompute()
